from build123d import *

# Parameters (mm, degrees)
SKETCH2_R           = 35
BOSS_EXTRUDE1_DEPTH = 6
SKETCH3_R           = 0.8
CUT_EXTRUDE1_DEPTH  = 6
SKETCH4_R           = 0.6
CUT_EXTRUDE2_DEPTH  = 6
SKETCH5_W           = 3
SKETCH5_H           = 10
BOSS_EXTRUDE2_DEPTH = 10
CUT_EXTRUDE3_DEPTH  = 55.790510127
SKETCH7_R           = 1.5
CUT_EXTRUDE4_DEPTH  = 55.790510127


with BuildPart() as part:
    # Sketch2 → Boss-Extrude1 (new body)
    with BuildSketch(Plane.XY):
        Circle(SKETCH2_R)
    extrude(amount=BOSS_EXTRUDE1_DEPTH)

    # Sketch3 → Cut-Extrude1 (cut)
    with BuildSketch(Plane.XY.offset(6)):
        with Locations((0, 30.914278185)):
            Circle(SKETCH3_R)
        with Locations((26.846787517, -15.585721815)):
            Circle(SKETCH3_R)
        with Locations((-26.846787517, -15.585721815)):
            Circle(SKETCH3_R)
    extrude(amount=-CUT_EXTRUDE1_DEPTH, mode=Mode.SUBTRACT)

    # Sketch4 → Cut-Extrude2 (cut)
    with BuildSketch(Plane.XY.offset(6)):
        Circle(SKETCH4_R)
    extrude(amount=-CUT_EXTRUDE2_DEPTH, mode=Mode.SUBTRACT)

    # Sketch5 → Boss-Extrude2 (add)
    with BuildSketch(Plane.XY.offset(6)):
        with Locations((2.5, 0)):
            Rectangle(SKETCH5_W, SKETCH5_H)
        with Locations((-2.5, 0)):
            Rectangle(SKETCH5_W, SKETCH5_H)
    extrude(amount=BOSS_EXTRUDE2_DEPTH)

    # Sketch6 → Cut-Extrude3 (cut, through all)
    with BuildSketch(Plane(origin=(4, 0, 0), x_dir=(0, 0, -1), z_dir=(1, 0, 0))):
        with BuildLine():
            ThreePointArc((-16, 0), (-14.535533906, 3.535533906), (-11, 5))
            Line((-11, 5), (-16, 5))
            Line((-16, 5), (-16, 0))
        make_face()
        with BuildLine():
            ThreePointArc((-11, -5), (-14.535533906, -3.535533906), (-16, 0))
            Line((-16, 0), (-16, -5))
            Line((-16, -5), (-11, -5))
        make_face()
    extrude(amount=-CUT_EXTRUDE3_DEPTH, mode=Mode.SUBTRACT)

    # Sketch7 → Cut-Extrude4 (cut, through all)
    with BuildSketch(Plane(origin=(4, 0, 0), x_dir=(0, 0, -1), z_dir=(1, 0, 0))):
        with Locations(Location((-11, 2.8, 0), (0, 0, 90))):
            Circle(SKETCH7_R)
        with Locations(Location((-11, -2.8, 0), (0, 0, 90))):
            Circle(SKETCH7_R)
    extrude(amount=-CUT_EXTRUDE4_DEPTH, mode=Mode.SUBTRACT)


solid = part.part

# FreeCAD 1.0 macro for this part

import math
import FreeCAD as App
import Part
import Sketcher
Q = App.Units.Quantity


def add_polygon(sketch, points):
    """Adds a closed chain of lines whose ends are joined by coincident constraints."""
    first, n = sketch.GeometryCount, len(points)
    for a, b in zip(points, points[1:] + points[:1]):
        sketch.addGeometry(Part.LineSegment(App.Vector(*a, 0), App.Vector(*b, 0)), False)
    for i in range(n):
        sketch.addConstraint(Sketcher.Constraint("Coincident", first + i, 2, first + (i + 1) % n, 1))

doc = App.newDocument("Part")
body = doc.addObject("PartDesign::Body", "Body")

sketch1 = body.newObject("Sketcher::SketchObject", "Sketch")
sketch1.AttachmentSupport = (doc.getObject("XY_Plane"), [""])
sketch1.MapMode = "FlatFace"
sketch1.addGeometry(Part.Circle(App.Vector(0, 0, 0), App.Vector(0, 0, 1), 35), False)
sketch1.addConstraint([
    Sketcher.Constraint("Coincident", 0, 3, -1, 1),
    Sketcher.Constraint("Diameter", 0, Q("70 mm")),
])
pad1 = body.newObject("PartDesign::Pad", "Pad")
pad1.Profile = sketch1
pad1.Length = 6

sketch2 = body.newObject("Sketcher::SketchObject", "Sketch001")
sketch2.AttachmentSupport = (doc.getObject("XY_Plane"), [""])
sketch2.MapMode = "FlatFace"
sketch2.AttachmentOffset = App.Placement(App.Vector(0, 0, 6), App.Rotation())
sketch2.addGeometry([
    Part.Circle(App.Vector(0, 30.914278, 0), App.Vector(0, 0, 1), 0.8),
    Part.Circle(App.Vector(26.846788, -15.585722, 0), App.Vector(0, 0, 1), 0.8),
    Part.Circle(App.Vector(-26.846788, -15.585722, 0), App.Vector(0, 0, 1), 0.8),
], False)
sketch2.addConstraint([
    Sketcher.Constraint("Equal", 0, 1),
    Sketcher.Constraint("Equal", 1, 2),
    Sketcher.Constraint("Symmetric", 1, 3, 2, 3, -2),
    Sketcher.Constraint("PointOnObject", 0, 3, -2),
    Sketcher.Constraint("Diameter", 0, Q("1.6 mm")),
    Sketcher.Constraint("DistanceY", 1, 3, 0, 3, Q("46.5 mm")),
    Sketcher.Constraint("DistanceY", -1, 1, 0, 3, Q("30.914278 mm")),
    Sketcher.Constraint("DistanceX", -1, 1, 1, 3, Q("26.846788 mm")),
])
pocket1 = body.newObject("PartDesign::Pocket", "Pocket")
pocket1.Profile = sketch2
pocket1.Length = 6

sketch3 = body.newObject("Sketcher::SketchObject", "Sketch002")
sketch3.AttachmentSupport = (doc.getObject("XY_Plane"), [""])
sketch3.MapMode = "FlatFace"
sketch3.AttachmentOffset = App.Placement(App.Vector(0, 0, 6), App.Rotation())
sketch3.addGeometry(Part.Circle(App.Vector(0, 0, 0), App.Vector(0, 0, 1), 0.6), False)
sketch3.addConstraint([
    Sketcher.Constraint("Coincident", 0, 3, -1, 1),
    Sketcher.Constraint("Diameter", 0, Q("1.2 mm")),
])
pocket2 = body.newObject("PartDesign::Pocket", "Pocket001")
pocket2.Profile = sketch3
pocket2.Length = 6

sketch4 = body.newObject("Sketcher::SketchObject", "Sketch003")
sketch4.AttachmentSupport = (doc.getObject("XY_Plane"), [""])
sketch4.MapMode = "FlatFace"
sketch4.AttachmentOffset = App.Placement(App.Vector(0, 0, 6), App.Rotation())
add_polygon(sketch4, [(1, 5), (1, -5), (4, -5), (4, 5)])
add_polygon(sketch4, [(-4, 5), (-4, -5), (-1, -5), (-1, 5)])
sketch4.addConstraint([
    Sketcher.Constraint("Vertical", 0),
    Sketcher.Constraint("Horizontal", 1),
    Sketcher.Constraint("Vertical", 2),
    Sketcher.Constraint("Horizontal", 3),
    Sketcher.Constraint("Vertical", 4),
    Sketcher.Constraint("Horizontal", 5),
    Sketcher.Constraint("Vertical", 6),
    Sketcher.Constraint("Horizontal", 7),
    Sketcher.Constraint("Symmetric", 2, 2, 4, 2, -1, 1),
    Sketcher.Constraint("Symmetric", 0, 2, 6, 2, -1, 1),
    Sketcher.Constraint("Horizontal", 1, 2, 4, 2),
    Sketcher.Constraint("DistanceX", 1, 1, 1, 2, Q("3 mm")),
    Sketcher.Constraint("DistanceY", 0, 2, 0, 1, Q("10 mm")),
    Sketcher.Constraint("DistanceX", -1, 1, 0, 2, Q("1 mm")),
])
pad2 = body.newObject("PartDesign::Pad", "Pad001")
pad2.Profile = sketch4
pad2.Length = 10

sketch5 = body.newObject("Sketcher::SketchObject", "Sketch004")
sketch5.AttachmentSupport = (doc.getObject("YZ_Plane"), [""])
sketch5.MapMode = "FlatFace"
sketch5.AttachmentOffset = App.Placement(App.Vector(0, 0, 4), App.Rotation())
sketch5.addGeometry([
    Part.ArcOfCircle(Part.Circle(App.Vector(0, 11, 0), App.Vector(0, 0, 1), 5), math.radians(0), math.radians(90)),
    Part.LineSegment(App.Vector(5, 11, 0), App.Vector(5, 16, 0)),
    Part.LineSegment(App.Vector(5, 16, 0), App.Vector(0, 16, 0)),
    Part.ArcOfCircle(Part.Circle(App.Vector(0, 11, 0), App.Vector(0, 0, 1), 5), math.radians(90), math.radians(180)),
    Part.LineSegment(App.Vector(0, 16, 0), App.Vector(-5, 16, 0)),
    Part.LineSegment(App.Vector(-5, 16, 0), App.Vector(-5, 11, 0)),
], False)
sketch5.addConstraint([
    Sketcher.Constraint("Tangent", 0, 1, 1, 1),
    Sketcher.Constraint("Coincident", 1, 2, 2, 1),
    Sketcher.Constraint("Tangent", 2, 2, 0, 2),
    Sketcher.Constraint("Tangent", 3, 1, 4, 1),
    Sketcher.Constraint("Coincident", 4, 2, 5, 1),
    Sketcher.Constraint("Tangent", 5, 2, 3, 2),
    Sketcher.Constraint("Vertical", 1),
    Sketcher.Constraint("Horizontal", 2),
    Sketcher.Constraint("Horizontal", 4),
    Sketcher.Constraint("Vertical", 5),
    Sketcher.Constraint("Coincident", 3, 3, 0, 3),
    Sketcher.Constraint("Equal", 0, 3),
    Sketcher.Constraint("PointOnObject", 0, 3, -2),
    Sketcher.Constraint("Radius", 0, Q("5 mm")),
    Sketcher.Constraint("DistanceY", -1, 1, 0, 3, Q("11 mm")),
])
pocket3 = body.newObject("PartDesign::Pocket", "Pocket002")
pocket3.Profile = sketch5
pocket3.Type = "ThroughAll"

sketch6 = body.newObject("Sketcher::SketchObject", "Sketch005")
sketch6.AttachmentSupport = (doc.getObject("YZ_Plane"), [""])
sketch6.MapMode = "FlatFace"
sketch6.AttachmentOffset = App.Placement(App.Vector(0, 0, 4), App.Rotation())
sketch6.addGeometry([
    Part.Circle(App.Vector(2.8, 11, 0), App.Vector(0, 0, 1), 1.5),
    Part.Circle(App.Vector(-2.8, 11, 0), App.Vector(0, 0, 1), 1.5),
], False)
sketch6.addConstraint([
    Sketcher.Constraint("Equal", 0, 1),
    Sketcher.Constraint("Symmetric", 0, 3, 1, 3, -2),
    Sketcher.Constraint("Diameter", 0, Q("3 mm")),
    Sketcher.Constraint("DistanceY", -1, 1, 0, 3, Q("11 mm")),
    Sketcher.Constraint("DistanceX", -1, 1, 0, 3, Q("2.8 mm")),
])
pocket4 = body.newObject("PartDesign::Pocket", "Pocket003")
pocket4.Profile = sketch6
pocket4.Type = "ThroughAll"

doc.recompute()
